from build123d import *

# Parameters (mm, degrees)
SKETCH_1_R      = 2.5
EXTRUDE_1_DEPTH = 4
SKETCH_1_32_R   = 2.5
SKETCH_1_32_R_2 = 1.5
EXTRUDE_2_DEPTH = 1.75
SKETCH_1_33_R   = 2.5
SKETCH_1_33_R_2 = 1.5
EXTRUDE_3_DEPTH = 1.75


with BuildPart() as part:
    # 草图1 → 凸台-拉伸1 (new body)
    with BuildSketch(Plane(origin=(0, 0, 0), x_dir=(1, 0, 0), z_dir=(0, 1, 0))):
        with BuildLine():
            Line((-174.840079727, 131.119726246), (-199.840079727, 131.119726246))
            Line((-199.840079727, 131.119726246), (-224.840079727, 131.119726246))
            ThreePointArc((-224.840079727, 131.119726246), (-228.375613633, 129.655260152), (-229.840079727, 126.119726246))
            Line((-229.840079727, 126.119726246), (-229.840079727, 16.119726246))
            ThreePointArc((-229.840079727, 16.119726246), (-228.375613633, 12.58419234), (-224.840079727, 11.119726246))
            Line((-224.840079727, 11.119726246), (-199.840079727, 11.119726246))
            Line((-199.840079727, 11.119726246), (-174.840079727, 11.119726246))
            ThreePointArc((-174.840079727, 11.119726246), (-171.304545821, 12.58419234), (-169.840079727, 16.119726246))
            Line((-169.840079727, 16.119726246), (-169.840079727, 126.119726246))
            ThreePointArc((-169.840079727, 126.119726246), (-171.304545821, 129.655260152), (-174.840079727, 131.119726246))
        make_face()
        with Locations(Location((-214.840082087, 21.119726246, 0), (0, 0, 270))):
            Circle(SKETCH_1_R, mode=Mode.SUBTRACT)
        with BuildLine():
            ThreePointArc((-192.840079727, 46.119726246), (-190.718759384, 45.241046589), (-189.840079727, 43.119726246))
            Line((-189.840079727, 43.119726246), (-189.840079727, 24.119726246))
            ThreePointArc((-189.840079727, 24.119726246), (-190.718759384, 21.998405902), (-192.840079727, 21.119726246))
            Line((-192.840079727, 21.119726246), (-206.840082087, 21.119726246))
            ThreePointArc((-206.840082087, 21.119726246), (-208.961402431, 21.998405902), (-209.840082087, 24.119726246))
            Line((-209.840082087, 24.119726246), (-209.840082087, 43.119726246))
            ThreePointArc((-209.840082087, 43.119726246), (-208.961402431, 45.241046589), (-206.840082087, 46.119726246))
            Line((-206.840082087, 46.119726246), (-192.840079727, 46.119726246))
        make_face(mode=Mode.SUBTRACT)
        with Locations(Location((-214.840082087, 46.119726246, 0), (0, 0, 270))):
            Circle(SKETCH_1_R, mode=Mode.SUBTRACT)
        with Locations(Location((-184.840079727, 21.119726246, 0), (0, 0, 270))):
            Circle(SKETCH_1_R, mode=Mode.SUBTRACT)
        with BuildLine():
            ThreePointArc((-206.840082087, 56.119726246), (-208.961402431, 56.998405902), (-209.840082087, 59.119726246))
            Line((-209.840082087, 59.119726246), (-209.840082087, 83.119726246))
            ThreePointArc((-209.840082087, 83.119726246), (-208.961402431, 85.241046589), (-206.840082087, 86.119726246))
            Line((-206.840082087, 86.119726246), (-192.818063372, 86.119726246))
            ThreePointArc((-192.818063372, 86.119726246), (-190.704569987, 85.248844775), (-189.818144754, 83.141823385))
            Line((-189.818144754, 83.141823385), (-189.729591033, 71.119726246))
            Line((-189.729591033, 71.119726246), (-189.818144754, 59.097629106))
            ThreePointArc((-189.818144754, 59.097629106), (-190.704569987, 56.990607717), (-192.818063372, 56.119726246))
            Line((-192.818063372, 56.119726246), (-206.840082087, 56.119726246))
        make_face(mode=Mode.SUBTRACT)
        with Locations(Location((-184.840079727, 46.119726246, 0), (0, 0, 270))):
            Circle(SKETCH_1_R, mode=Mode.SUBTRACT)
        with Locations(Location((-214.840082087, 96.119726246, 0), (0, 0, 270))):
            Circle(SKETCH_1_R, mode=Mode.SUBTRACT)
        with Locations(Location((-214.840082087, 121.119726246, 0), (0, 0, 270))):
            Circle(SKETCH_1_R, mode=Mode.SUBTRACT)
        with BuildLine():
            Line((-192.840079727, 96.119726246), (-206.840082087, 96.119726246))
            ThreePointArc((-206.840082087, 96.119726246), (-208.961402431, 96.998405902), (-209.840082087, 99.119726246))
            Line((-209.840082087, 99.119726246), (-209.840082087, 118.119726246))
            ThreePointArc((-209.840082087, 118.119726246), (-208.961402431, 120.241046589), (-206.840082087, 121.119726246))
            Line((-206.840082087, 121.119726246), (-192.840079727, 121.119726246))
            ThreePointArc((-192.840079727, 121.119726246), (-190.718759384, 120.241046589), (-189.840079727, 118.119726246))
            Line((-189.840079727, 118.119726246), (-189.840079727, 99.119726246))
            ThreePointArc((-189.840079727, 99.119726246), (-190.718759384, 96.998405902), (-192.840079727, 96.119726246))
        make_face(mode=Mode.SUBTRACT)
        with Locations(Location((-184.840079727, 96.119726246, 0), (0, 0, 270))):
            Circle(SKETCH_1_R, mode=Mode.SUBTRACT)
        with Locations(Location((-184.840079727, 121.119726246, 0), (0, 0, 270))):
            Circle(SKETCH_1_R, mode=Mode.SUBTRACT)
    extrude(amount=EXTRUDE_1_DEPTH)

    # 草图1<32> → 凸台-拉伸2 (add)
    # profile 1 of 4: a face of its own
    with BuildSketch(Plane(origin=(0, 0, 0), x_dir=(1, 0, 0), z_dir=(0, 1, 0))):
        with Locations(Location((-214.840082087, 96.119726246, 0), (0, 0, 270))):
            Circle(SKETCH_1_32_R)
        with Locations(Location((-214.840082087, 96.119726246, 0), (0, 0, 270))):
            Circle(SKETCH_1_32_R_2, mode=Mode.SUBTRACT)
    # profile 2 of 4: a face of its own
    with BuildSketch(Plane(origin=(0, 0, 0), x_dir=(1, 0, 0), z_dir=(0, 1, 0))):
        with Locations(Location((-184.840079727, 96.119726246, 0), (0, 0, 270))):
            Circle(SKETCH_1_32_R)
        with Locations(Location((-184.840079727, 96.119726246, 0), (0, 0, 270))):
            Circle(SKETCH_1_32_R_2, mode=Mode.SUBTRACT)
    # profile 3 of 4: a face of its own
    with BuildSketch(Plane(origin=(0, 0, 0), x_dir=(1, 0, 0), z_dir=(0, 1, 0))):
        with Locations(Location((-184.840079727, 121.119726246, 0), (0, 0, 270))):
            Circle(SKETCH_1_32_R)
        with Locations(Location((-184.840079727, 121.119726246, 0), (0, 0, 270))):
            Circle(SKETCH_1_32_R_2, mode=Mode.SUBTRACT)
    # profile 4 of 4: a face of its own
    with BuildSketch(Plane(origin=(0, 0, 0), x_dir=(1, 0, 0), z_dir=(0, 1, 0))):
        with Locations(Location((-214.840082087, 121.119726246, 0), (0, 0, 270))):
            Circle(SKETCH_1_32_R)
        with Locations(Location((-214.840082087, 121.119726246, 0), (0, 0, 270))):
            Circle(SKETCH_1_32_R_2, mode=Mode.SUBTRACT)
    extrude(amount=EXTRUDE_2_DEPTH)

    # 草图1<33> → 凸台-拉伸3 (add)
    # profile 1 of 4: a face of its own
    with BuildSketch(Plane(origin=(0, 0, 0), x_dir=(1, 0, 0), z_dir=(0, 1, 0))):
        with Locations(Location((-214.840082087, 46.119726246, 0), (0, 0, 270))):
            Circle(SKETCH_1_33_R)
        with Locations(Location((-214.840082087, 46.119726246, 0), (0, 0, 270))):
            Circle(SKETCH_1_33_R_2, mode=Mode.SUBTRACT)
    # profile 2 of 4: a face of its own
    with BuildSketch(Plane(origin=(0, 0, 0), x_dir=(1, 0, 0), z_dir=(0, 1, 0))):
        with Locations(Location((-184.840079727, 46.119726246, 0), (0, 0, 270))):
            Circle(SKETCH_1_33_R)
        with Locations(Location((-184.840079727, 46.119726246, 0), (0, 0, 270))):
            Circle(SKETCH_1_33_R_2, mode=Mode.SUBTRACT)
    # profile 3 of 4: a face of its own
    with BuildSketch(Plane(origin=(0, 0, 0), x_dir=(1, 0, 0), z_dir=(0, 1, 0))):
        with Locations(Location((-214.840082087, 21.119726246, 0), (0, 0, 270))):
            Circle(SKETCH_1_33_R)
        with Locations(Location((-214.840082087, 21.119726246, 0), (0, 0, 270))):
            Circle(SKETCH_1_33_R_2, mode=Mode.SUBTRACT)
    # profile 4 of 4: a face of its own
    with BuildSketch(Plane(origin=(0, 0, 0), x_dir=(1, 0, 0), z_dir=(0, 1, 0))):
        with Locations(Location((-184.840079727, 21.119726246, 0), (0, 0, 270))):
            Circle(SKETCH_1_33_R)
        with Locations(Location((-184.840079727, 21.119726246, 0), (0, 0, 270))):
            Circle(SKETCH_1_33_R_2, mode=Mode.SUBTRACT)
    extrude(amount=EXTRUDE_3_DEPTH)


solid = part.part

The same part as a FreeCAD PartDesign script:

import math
import FreeCAD as App
import Part
import Sketcher
from FreeCAD import Vector
Q = App.Units.Quantity

doc = App.newDocument("Part")
body = doc.addObject("PartDesign::Body", "Body")

# Sketch on XZ plane
sketch1 = body.newObject("Sketcher::SketchObject", "Sketch")
sketch1.AttachmentSupport = (doc.getObject("XZ_Plane"), [""])
sketch1.MapMode = "FlatFace"
sketch1.addGeometry(Part.LineSegment(Vector(-174.84008, -131.119726, 0), Vector(-224.84008, -131.119726, 0)), False)
sketch1.addGeometry(Part.ArcOfCircle(Part.Circle(Vector(-224.84008, -126.119726, 0), Vector(0, 0, 1), 5), math.radians(180), math.radians(270)), False)
sketch1.addGeometry(Part.LineSegment(Vector(-229.84008, -126.119726, 0), Vector(-229.84008, -16.119726, 0)), False)
sketch1.addGeometry(Part.ArcOfCircle(Part.Circle(Vector(-224.84008, -16.119726, 0), Vector(0, 0, 1), 5), math.radians(90), math.radians(180)), False)
sketch1.addGeometry(Part.LineSegment(Vector(-224.84008, -11.119726, 0), Vector(-174.84008, -11.119726, 0)), False)
sketch1.addGeometry(Part.ArcOfCircle(Part.Circle(Vector(-174.84008, -16.119726, 0), Vector(0, 0, 1), 5), math.radians(0), math.radians(90)), False)
sketch1.addGeometry(Part.LineSegment(Vector(-169.84008, -16.119726, 0), Vector(-169.84008, -126.119726, 0)), False)
sketch1.addGeometry(Part.ArcOfCircle(Part.Circle(Vector(-174.84008, -126.119726, 0), Vector(0, 0, 1), 5), math.radians(-90), math.radians(0)), False)
sketch1.addGeometry(Part.Circle(Vector(-214.840082, -21.119726, 0), Vector(0, 0, 1), 2.5), False)
sketch1.addGeometry(Part.Circle(Vector(-214.840082, -46.119726, 0), Vector(0, 0, 1), 2.5), False)
sketch1.addGeometry(Part.LineSegment(Vector(-206.840082, -46.119726, 0), Vector(-192.84008, -46.119726, 0)), False)
sketch1.addGeometry(Part.ArcOfCircle(Part.Circle(Vector(-192.84008, -43.119726, 0), Vector(0, 0, 1), 3), math.radians(-90), math.radians(0)), False)
sketch1.addGeometry(Part.LineSegment(Vector(-189.84008, -43.119726, 0), Vector(-189.84008, -24.119726, 0)), False)
sketch1.addGeometry(Part.ArcOfCircle(Part.Circle(Vector(-192.84008, -24.119726, 0), Vector(0, 0, 1), 3), math.radians(0), math.radians(90)), False)
sketch1.addGeometry(Part.LineSegment(Vector(-192.84008, -21.119726, 0), Vector(-206.840082, -21.119726, 0)), False)
sketch1.addGeometry(Part.ArcOfCircle(Part.Circle(Vector(-206.840082, -24.119726, 0), Vector(0, 0, 1), 3), math.radians(90), math.radians(180)), False)
sketch1.addGeometry(Part.LineSegment(Vector(-209.840082, -24.119726, 0), Vector(-209.840082, -43.119726, 0)), False)
sketch1.addGeometry(Part.ArcOfCircle(Part.Circle(Vector(-206.840082, -43.119726, 0), Vector(0, 0, 1), 3), math.radians(180), math.radians(270)), False)
sketch1.addGeometry(Part.Circle(Vector(-184.84008, -21.119726, 0), Vector(0, 0, 1), 2.5), False)
sketch1.addGeometry(Part.Circle(Vector(-184.84008, -46.119726, 0), Vector(0, 0, 1), 2.5), False)
sketch1.addGeometry(Part.Circle(Vector(-214.840082, -96.119726, 0), Vector(0, 0, 1), 2.5), False)
sketch1.addGeometry(Part.Circle(Vector(-214.840082, -121.119726, 0), Vector(0, 0, 1), 2.5), False)
sketch1.addGeometry(Part.LineSegment(Vector(-192.818063, -56.119726, 0), Vector(-206.840082, -56.119726, 0)), False)
sketch1.addGeometry(Part.ArcOfCircle(Part.Circle(Vector(-206.840082, -59.119726, 0), Vector(0, 0, 1), 3), math.radians(90), math.radians(180)), False)
sketch1.addGeometry(Part.LineSegment(Vector(-209.840082, -59.119726, 0), Vector(-209.840082, -83.119726, 0)), False)
sketch1.addGeometry(Part.ArcOfCircle(Part.Circle(Vector(-206.840082, -83.119726, 0), Vector(0, 0, 1), 3), math.radians(180), math.radians(270)), False)
sketch1.addGeometry(Part.LineSegment(Vector(-206.840082, -86.119726, 0), Vector(-192.818063, -86.119726, 0)), False)
sketch1.addGeometry(Part.ArcOfCircle(Part.Circle(Vector(-192.818063, -83.119726, 0), Vector(0, 0, 1), 3), math.radians(-90), math.radians(-0.422028)), False)
sketch1.addGeometry(Part.LineSegment(Vector(-189.818145, -83.141823, 0), Vector(-189.729591, -71.119726, 0)), False)
sketch1.addGeometry(Part.LineSegment(Vector(-189.729591, -71.119726, 0), Vector(-189.818145, -59.097629, 0)), False)
sketch1.addGeometry(Part.ArcOfCircle(Part.Circle(Vector(-192.818063, -59.119726, 0), Vector(0, 0, 1), 3), math.radians(0.422028), math.radians(90)), False)
sketch1.addGeometry(Part.Circle(Vector(-184.84008, -96.119726, 0), Vector(0, 0, 1), 2.5), False)
sketch1.addGeometry(Part.ArcOfCircle(Part.Circle(Vector(-192.84008, -99.119726, 0), Vector(0, 0, 1), 3), math.radians(0), math.radians(90)), False)
sketch1.addGeometry(Part.LineSegment(Vector(-192.84008, -96.119726, 0), Vector(-206.840082, -96.119726, 0)), False)
sketch1.addGeometry(Part.ArcOfCircle(Part.Circle(Vector(-206.840082, -99.119726, 0), Vector(0, 0, 1), 3), math.radians(90), math.radians(180)), False)
sketch1.addGeometry(Part.LineSegment(Vector(-209.840082, -99.119726, 0), Vector(-209.840082, -118.119726, 0)), False)
sketch1.addGeometry(Part.ArcOfCircle(Part.Circle(Vector(-206.840082, -118.119726, 0), Vector(0, 0, 1), 3), math.radians(180), math.radians(270)), False)
sketch1.addGeometry(Part.LineSegment(Vector(-206.840082, -121.119726, 0), Vector(-192.84008, -121.119726, 0)), False)
sketch1.addGeometry(Part.ArcOfCircle(Part.Circle(Vector(-192.84008, -118.119726, 0), Vector(0, 0, 1), 3), math.radians(-90), math.radians(0)), False)
sketch1.addGeometry(Part.LineSegment(Vector(-189.84008, -118.119726, 0), Vector(-189.84008, -99.119726, 0)), False)
sketch1.addGeometry(Part.Circle(Vector(-184.84008, -121.119726, 0), Vector(0, 0, 1), 2.5), False)
sketch1.addConstraint(Sketcher.Constraint("Tangent", 0, 2, 1, 2))
sketch1.addConstraint(Sketcher.Constraint("Tangent", 1, 1, 2, 1))
sketch1.addConstraint(Sketcher.Constraint("Tangent", 2, 2, 3, 2))
sketch1.addConstraint(Sketcher.Constraint("Tangent", 3, 1, 4, 1))
sketch1.addConstraint(Sketcher.Constraint("Tangent", 4, 2, 5, 2))
sketch1.addConstraint(Sketcher.Constraint("Tangent", 5, 1, 6, 1))
sketch1.addConstraint(Sketcher.Constraint("Tangent", 6, 2, 7, 2))
sketch1.addConstraint(Sketcher.Constraint("Tangent", 7, 1, 0, 1))
sketch1.addConstraint(Sketcher.Constraint("Tangent", 10, 2, 11, 1))
sketch1.addConstraint(Sketcher.Constraint("Tangent", 11, 2, 12, 1))
sketch1.addConstraint(Sketcher.Constraint("Tangent", 12, 2, 13, 1))
sketch1.addConstraint(Sketcher.Constraint("Tangent", 13, 2, 14, 1))
sketch1.addConstraint(Sketcher.Constraint("Tangent", 14, 2, 15, 1))
sketch1.addConstraint(Sketcher.Constraint("Tangent", 15, 2, 16, 1))
sketch1.addConstraint(Sketcher.Constraint("Tangent", 16, 2, 17, 1))
sketch1.addConstraint(Sketcher.Constraint("Tangent", 17, 2, 10, 1))
sketch1.addConstraint(Sketcher.Constraint("Tangent", 22, 2, 23, 1))
sketch1.addConstraint(Sketcher.Constraint("Tangent", 23, 2, 24, 1))
sketch1.addConstraint(Sketcher.Constraint("Tangent", 24, 2, 25, 1))
sketch1.addConstraint(Sketcher.Constraint("Tangent", 25, 2, 26, 1))
sketch1.addConstraint(Sketcher.Constraint("Tangent", 26, 2, 27, 1))
sketch1.addConstraint(Sketcher.Constraint("Tangent", 27, 2, 28, 1))
sketch1.addConstraint(Sketcher.Constraint("Coincident", 28, 2, 29, 1))
sketch1.addConstraint(Sketcher.Constraint("Tangent", 29, 2, 30, 1))
sketch1.addConstraint(Sketcher.Constraint("Tangent", 30, 2, 22, 1))
sketch1.addConstraint(Sketcher.Constraint("Tangent", 32, 2, 33, 1))
sketch1.addConstraint(Sketcher.Constraint("Tangent", 33, 2, 34, 1))
sketch1.addConstraint(Sketcher.Constraint("Tangent", 34, 2, 35, 1))
sketch1.addConstraint(Sketcher.Constraint("Tangent", 35, 2, 36, 1))
sketch1.addConstraint(Sketcher.Constraint("Tangent", 36, 2, 37, 1))
sketch1.addConstraint(Sketcher.Constraint("Tangent", 37, 2, 38, 1))
sketch1.addConstraint(Sketcher.Constraint("Tangent", 38, 2, 39, 1))
sketch1.addConstraint(Sketcher.Constraint("Tangent", 39, 2, 32, 1))
sketch1.addConstraint(Sketcher.Constraint("Horizontal", 0))
sketch1.addConstraint(Sketcher.Constraint("Vertical", 2))
sketch1.addConstraint(Sketcher.Constraint("Horizontal", 4))
sketch1.addConstraint(Sketcher.Constraint("Vertical", 6))
sketch1.addConstraint(Sketcher.Constraint("Horizontal", 10))
sketch1.addConstraint(Sketcher.Constraint("Vertical", 12))
sketch1.addConstraint(Sketcher.Constraint("Horizontal", 14))
sketch1.addConstraint(Sketcher.Constraint("Vertical", 16))
sketch1.addConstraint(Sketcher.Constraint("Horizontal", 22))
sketch1.addConstraint(Sketcher.Constraint("Vertical", 24))
sketch1.addConstraint(Sketcher.Constraint("Horizontal", 26))
sketch1.addConstraint(Sketcher.Constraint("Horizontal", 33))
sketch1.addConstraint(Sketcher.Constraint("Vertical", 35))
sketch1.addConstraint(Sketcher.Constraint("Horizontal", 37))
sketch1.addConstraint(Sketcher.Constraint("Vertical", 39))
sketch1.addConstraint(Sketcher.Constraint("Equal", 1, 3))
sketch1.addConstraint(Sketcher.Constraint("Equal", 3, 5))
sketch1.addConstraint(Sketcher.Constraint("Equal", 5, 7))
sketch1.addConstraint(Sketcher.Constraint("Equal", 8, 9))
sketch1.addConstraint(Sketcher.Constraint("Equal", 11, 13))
sketch1.addConstraint(Sketcher.Constraint("Equal", 13, 15))
sketch1.addConstraint(Sketcher.Constraint("Equal", 15, 17))
sketch1.addConstraint(Sketcher.Constraint("Equal", 9, 18))
sketch1.addConstraint(Sketcher.Constraint("Equal", 18, 19))
sketch1.addConstraint(Sketcher.Constraint("Equal", 19, 20))
sketch1.addConstraint(Sketcher.Constraint("Equal", 20, 21))
sketch1.addConstraint(Sketcher.Constraint("Equal", 17, 23))
sketch1.addConstraint(Sketcher.Constraint("Equal", 23, 25))
sketch1.addConstraint(Sketcher.Constraint("Equal", 25, 27))
sketch1.addConstraint(Sketcher.Constraint("Equal", 27, 30))
sketch1.addConstraint(Sketcher.Constraint("Equal", 21, 31))
sketch1.addConstraint(Sketcher.Constraint("Equal", 30, 32))
sketch1.addConstraint(Sketcher.Constraint("Equal", 32, 34))
sketch1.addConstraint(Sketcher.Constraint("Equal", 34, 36))
sketch1.addConstraint(Sketcher.Constraint("Equal", 36, 38))
sketch1.addConstraint(Sketcher.Constraint("Equal", 31, 40))
sketch1.addConstraint(Sketcher.Constraint("Horizontal", 8, 3, 18, 3))
sketch1.addConstraint(Sketcher.Constraint("Horizontal", 9, 3, 19, 3))
sketch1.addConstraint(Sketcher.Constraint("Horizontal", 20, 3, 31, 3))
sketch1.addConstraint(Sketcher.Constraint("Horizontal", 21, 3, 40, 3))
sketch1.addConstraint(Sketcher.Constraint("Horizontal", 19, 3, 10, 2))
sketch1.addConstraint(Sketcher.Constraint("Horizontal", 18, 3, 13, 2))
sketch1.addConstraint(Sketcher.Constraint("Horizontal", 31, 3, 32, 2))
sketch1.addConstraint(Sketcher.Constraint("Horizontal", 40, 3, 36, 2))
sketch1.addConstraint(Sketcher.Constraint("Vertical", 8, 3, 9, 3))
sketch1.addConstraint(Sketcher.Constraint("Vertical", 18, 3, 19, 3))
sketch1.addConstraint(Sketcher.Constraint("Vertical", 9, 3, 20, 3))
sketch1.addConstraint(Sketcher.Constraint("Vertical", 20, 3, 21, 3))
sketch1.addConstraint(Sketcher.Constraint("Vertical", 17, 3, 23, 3))
sketch1.addConstraint(Sketcher.Constraint("Vertical", 27, 3, 30, 3))
sketch1.addConstraint(Sketcher.Constraint("Vertical", 19, 3, 31, 3))
sketch1.addConstraint(Sketcher.Constraint("Vertical", 13, 3, 32, 3))
sketch1.addConstraint(Sketcher.Constraint("Vertical", 25, 3, 34, 3))
sketch1.addConstraint(Sketcher.Constraint("Vertical", 31, 3, 40, 3))
sketch1.addConstraint(Sketcher.Constraint("Equal", 16, 35))
sketch1.addConstraint(Sketcher.Constraint("Equal", 28, 29))
sketch1.addConstraint(Sketcher.Constraint("Diameter", 8, Q("5 mm")))
sketch1.addConstraint(Sketcher.Constraint("Radius", 1, Q("5 mm")))
sketch1.addConstraint(Sketcher.Constraint("Radius", 11, Q("3 mm")))
sketch1.addConstraint(Sketcher.Constraint("DistanceX", 0, 2, 0, 1, Q("50 mm")))
sketch1.addConstraint(Sketcher.Constraint("DistanceY", 2, 1, 2, 2, Q("110 mm")))
sketch1.addConstraint(Sketcher.Constraint("DistanceY", 12, 1, 12, 2, Q("19 mm")))
sketch1.addConstraint(Sketcher.Constraint("DistanceY", 24, 2, 24, 1, Q("24 mm")))
sketch1.addConstraint(Sketcher.Constraint("DistanceY", 8, 3, 3, 3, Q("5 mm")))
sketch1.addConstraint(Sketcher.Constraint("DistanceX", 11, 3, 5, 3, Q("18 mm")))
sketch1.addConstraint(Sketcher.Constraint("DistanceX", 8, 3, 15, 3, Q("8 mm")))
sketch1.addConstraint(Sketcher.Constraint("DistanceX", 13, 3, 18, 3, Q("8 mm")))
sketch1.addConstraint(Sketcher.Constraint("DistanceY", 1, 3, 20, 3, Q("30 mm")))
sketch1.addConstraint(Sketcher.Constraint("DistanceY", 23, 3, 9, 3, Q("13 mm")))
sketch1.addConstraint(Sketcher.Constraint("DistanceX", 22, 2, 22, 1, Q("14.022019 mm")))
sketch1.addConstraint(Sketcher.Constraint("DistanceX", 10, 1, 10, 2, Q("14.000002 mm")))
sketch1.addConstraint(Sketcher.Constraint("DistanceX", 1, 3, -1, 1, Q("224.84008 mm")))
sketch1.addConstraint(Sketcher.Constraint("DistanceX", 28, 2, -1, 1, Q("189.729591 mm")))
sketch1.addConstraint(Sketcher.Constraint("DistanceY", 29, 2, -1, 1, Q("59.097629 mm")))
pad1 = body.newObject("PartDesign::Pad", "Pad")
pad1.Profile = sketch1
pad1.Length = 4
pad1.Reversed = True

# Sketch on XZ plane
sketch2 = body.newObject("Sketcher::SketchObject", "Sketch001")
sketch2.AttachmentSupport = (doc.getObject("XZ_Plane"), [""])
sketch2.MapMode = "FlatFace"
sketch2.addGeometry(Part.Circle(Vector(-214.840082, -96.119726, 0), Vector(0, 0, 1), 2.5), False)
sketch2.addGeometry(Part.Circle(Vector(-214.840082, -96.119726, 0), Vector(0, 0, 1), 1.5), False)
sketch2.addGeometry(Part.Circle(Vector(-184.84008, -96.119726, 0), Vector(0, 0, 1), 2.5), False)
sketch2.addGeometry(Part.Circle(Vector(-184.84008, -96.119726, 0), Vector(0, 0, 1), 1.5), False)
sketch2.addGeometry(Part.Circle(Vector(-184.84008, -121.119726, 0), Vector(0, 0, 1), 2.5), False)
sketch2.addGeometry(Part.Circle(Vector(-184.84008, -121.119726, 0), Vector(0, 0, 1), 1.5), False)
sketch2.addGeometry(Part.Circle(Vector(-214.840082, -121.119726, 0), Vector(0, 0, 1), 2.5), False)
sketch2.addGeometry(Part.Circle(Vector(-214.840082, -121.119726, 0), Vector(0, 0, 1), 1.5), False)
sketch2.addConstraint(Sketcher.Constraint("Coincident", 1, 3, 0, 3))
sketch2.addConstraint(Sketcher.Constraint("Coincident", 3, 3, 2, 3))
sketch2.addConstraint(Sketcher.Constraint("Coincident", 5, 3, 4, 3))
sketch2.addConstraint(Sketcher.Constraint("Coincident", 7, 3, 6, 3))
sketch2.addConstraint(Sketcher.Constraint("Equal", 0, 2))
sketch2.addConstraint(Sketcher.Constraint("Equal", 1, 3))
sketch2.addConstraint(Sketcher.Constraint("Equal", 2, 4))
sketch2.addConstraint(Sketcher.Constraint("Equal", 3, 5))
sketch2.addConstraint(Sketcher.Constraint("Equal", 4, 6))
sketch2.addConstraint(Sketcher.Constraint("Equal", 5, 7))
sketch2.addConstraint(Sketcher.Constraint("Horizontal", 1, 3, 2, 3))
sketch2.addConstraint(Sketcher.Constraint("Horizontal", 5, 3, 6, 3))
sketch2.addConstraint(Sketcher.Constraint("Vertical", 3, 3, 4, 3))
sketch2.addConstraint(Sketcher.Constraint("Vertical", 1, 3, 6, 3))
sketch2.addConstraint(Sketcher.Constraint("Diameter", 0, Q("5 mm")))
sketch2.addConstraint(Sketcher.Constraint("Diameter", 1, Q("3 mm")))
sketch2.addConstraint(Sketcher.Constraint("DistanceY", 4, 3, 2, 3, Q("25 mm")))
sketch2.addConstraint(Sketcher.Constraint("DistanceX", 2, 3, -1, 1, Q("184.84008 mm")))
sketch2.addConstraint(Sketcher.Constraint("DistanceX", 0, 3, -1, 1, Q("214.840082 mm")))
sketch2.addConstraint(Sketcher.Constraint("DistanceY", 0, 3, -1, 1, Q("96.119726 mm")))
pad2 = body.newObject("PartDesign::Pad", "Pad001")
pad2.Profile = sketch2
pad2.Length = 1.75
pad2.Reversed = True

# Sketch on XZ plane
sketch3 = body.newObject("Sketcher::SketchObject", "Sketch002")
sketch3.AttachmentSupport = (doc.getObject("XZ_Plane"), [""])
sketch3.MapMode = "FlatFace"
sketch3.addGeometry(Part.Circle(Vector(-214.840082, -46.119726, 0), Vector(0, 0, 1), 2.5), False)
sketch3.addGeometry(Part.Circle(Vector(-214.840082, -46.119726, 0), Vector(0, 0, 1), 1.5), False)
sketch3.addGeometry(Part.Circle(Vector(-184.84008, -46.119726, 0), Vector(0, 0, 1), 2.5), False)
sketch3.addGeometry(Part.Circle(Vector(-184.84008, -46.119726, 0), Vector(0, 0, 1), 1.5), False)
sketch3.addGeometry(Part.Circle(Vector(-214.840082, -21.119726, 0), Vector(0, 0, 1), 2.5), False)
sketch3.addGeometry(Part.Circle(Vector(-214.840082, -21.119726, 0), Vector(0, 0, 1), 1.5), False)
sketch3.addGeometry(Part.Circle(Vector(-184.84008, -21.119726, 0), Vector(0, 0, 1), 2.5), False)
sketch3.addGeometry(Part.Circle(Vector(-184.84008, -21.119726, 0), Vector(0, 0, 1), 1.5), False)
sketch3.addConstraint(Sketcher.Constraint("Coincident", 1, 3, 0, 3))
sketch3.addConstraint(Sketcher.Constraint("Coincident", 3, 3, 2, 3))
sketch3.addConstraint(Sketcher.Constraint("Coincident", 5, 3, 4, 3))
sketch3.addConstraint(Sketcher.Constraint("Coincident", 7, 3, 6, 3))
sketch3.addConstraint(Sketcher.Constraint("Equal", 0, 2))
sketch3.addConstraint(Sketcher.Constraint("Equal", 1, 3))
sketch3.addConstraint(Sketcher.Constraint("Equal", 2, 4))
sketch3.addConstraint(Sketcher.Constraint("Equal", 3, 5))
sketch3.addConstraint(Sketcher.Constraint("Equal", 4, 6))
sketch3.addConstraint(Sketcher.Constraint("Equal", 5, 7))
sketch3.addConstraint(Sketcher.Constraint("Horizontal", 1, 3, 2, 3))
sketch3.addConstraint(Sketcher.Constraint("Horizontal", 5, 3, 6, 3))
sketch3.addConstraint(Sketcher.Constraint("Vertical", 1, 3, 4, 3))
sketch3.addConstraint(Sketcher.Constraint("Vertical", 3, 3, 6, 3))
sketch3.addConstraint(Sketcher.Constraint("Diameter", 0, Q("5 mm")))
sketch3.addConstraint(Sketcher.Constraint("Diameter", 1, Q("3 mm")))
sketch3.addConstraint(Sketcher.Constraint("DistanceY", 0, 3, 4, 3, Q("25 mm")))
sketch3.addConstraint(Sketcher.Constraint("DistanceX", 2, 3, -1, 1, Q("184.84008 mm")))
sketch3.addConstraint(Sketcher.Constraint("DistanceX", 0, 3, -1, 1, Q("214.840082 mm")))
sketch3.addConstraint(Sketcher.Constraint("DistanceY", 0, 3, -1, 1, Q("46.119726 mm")))
pad3 = body.newObject("PartDesign::Pad", "Pad002")
pad3.Profile = sketch3
pad3.Length = 1.75
pad3.Reversed = True

doc.recompute()
